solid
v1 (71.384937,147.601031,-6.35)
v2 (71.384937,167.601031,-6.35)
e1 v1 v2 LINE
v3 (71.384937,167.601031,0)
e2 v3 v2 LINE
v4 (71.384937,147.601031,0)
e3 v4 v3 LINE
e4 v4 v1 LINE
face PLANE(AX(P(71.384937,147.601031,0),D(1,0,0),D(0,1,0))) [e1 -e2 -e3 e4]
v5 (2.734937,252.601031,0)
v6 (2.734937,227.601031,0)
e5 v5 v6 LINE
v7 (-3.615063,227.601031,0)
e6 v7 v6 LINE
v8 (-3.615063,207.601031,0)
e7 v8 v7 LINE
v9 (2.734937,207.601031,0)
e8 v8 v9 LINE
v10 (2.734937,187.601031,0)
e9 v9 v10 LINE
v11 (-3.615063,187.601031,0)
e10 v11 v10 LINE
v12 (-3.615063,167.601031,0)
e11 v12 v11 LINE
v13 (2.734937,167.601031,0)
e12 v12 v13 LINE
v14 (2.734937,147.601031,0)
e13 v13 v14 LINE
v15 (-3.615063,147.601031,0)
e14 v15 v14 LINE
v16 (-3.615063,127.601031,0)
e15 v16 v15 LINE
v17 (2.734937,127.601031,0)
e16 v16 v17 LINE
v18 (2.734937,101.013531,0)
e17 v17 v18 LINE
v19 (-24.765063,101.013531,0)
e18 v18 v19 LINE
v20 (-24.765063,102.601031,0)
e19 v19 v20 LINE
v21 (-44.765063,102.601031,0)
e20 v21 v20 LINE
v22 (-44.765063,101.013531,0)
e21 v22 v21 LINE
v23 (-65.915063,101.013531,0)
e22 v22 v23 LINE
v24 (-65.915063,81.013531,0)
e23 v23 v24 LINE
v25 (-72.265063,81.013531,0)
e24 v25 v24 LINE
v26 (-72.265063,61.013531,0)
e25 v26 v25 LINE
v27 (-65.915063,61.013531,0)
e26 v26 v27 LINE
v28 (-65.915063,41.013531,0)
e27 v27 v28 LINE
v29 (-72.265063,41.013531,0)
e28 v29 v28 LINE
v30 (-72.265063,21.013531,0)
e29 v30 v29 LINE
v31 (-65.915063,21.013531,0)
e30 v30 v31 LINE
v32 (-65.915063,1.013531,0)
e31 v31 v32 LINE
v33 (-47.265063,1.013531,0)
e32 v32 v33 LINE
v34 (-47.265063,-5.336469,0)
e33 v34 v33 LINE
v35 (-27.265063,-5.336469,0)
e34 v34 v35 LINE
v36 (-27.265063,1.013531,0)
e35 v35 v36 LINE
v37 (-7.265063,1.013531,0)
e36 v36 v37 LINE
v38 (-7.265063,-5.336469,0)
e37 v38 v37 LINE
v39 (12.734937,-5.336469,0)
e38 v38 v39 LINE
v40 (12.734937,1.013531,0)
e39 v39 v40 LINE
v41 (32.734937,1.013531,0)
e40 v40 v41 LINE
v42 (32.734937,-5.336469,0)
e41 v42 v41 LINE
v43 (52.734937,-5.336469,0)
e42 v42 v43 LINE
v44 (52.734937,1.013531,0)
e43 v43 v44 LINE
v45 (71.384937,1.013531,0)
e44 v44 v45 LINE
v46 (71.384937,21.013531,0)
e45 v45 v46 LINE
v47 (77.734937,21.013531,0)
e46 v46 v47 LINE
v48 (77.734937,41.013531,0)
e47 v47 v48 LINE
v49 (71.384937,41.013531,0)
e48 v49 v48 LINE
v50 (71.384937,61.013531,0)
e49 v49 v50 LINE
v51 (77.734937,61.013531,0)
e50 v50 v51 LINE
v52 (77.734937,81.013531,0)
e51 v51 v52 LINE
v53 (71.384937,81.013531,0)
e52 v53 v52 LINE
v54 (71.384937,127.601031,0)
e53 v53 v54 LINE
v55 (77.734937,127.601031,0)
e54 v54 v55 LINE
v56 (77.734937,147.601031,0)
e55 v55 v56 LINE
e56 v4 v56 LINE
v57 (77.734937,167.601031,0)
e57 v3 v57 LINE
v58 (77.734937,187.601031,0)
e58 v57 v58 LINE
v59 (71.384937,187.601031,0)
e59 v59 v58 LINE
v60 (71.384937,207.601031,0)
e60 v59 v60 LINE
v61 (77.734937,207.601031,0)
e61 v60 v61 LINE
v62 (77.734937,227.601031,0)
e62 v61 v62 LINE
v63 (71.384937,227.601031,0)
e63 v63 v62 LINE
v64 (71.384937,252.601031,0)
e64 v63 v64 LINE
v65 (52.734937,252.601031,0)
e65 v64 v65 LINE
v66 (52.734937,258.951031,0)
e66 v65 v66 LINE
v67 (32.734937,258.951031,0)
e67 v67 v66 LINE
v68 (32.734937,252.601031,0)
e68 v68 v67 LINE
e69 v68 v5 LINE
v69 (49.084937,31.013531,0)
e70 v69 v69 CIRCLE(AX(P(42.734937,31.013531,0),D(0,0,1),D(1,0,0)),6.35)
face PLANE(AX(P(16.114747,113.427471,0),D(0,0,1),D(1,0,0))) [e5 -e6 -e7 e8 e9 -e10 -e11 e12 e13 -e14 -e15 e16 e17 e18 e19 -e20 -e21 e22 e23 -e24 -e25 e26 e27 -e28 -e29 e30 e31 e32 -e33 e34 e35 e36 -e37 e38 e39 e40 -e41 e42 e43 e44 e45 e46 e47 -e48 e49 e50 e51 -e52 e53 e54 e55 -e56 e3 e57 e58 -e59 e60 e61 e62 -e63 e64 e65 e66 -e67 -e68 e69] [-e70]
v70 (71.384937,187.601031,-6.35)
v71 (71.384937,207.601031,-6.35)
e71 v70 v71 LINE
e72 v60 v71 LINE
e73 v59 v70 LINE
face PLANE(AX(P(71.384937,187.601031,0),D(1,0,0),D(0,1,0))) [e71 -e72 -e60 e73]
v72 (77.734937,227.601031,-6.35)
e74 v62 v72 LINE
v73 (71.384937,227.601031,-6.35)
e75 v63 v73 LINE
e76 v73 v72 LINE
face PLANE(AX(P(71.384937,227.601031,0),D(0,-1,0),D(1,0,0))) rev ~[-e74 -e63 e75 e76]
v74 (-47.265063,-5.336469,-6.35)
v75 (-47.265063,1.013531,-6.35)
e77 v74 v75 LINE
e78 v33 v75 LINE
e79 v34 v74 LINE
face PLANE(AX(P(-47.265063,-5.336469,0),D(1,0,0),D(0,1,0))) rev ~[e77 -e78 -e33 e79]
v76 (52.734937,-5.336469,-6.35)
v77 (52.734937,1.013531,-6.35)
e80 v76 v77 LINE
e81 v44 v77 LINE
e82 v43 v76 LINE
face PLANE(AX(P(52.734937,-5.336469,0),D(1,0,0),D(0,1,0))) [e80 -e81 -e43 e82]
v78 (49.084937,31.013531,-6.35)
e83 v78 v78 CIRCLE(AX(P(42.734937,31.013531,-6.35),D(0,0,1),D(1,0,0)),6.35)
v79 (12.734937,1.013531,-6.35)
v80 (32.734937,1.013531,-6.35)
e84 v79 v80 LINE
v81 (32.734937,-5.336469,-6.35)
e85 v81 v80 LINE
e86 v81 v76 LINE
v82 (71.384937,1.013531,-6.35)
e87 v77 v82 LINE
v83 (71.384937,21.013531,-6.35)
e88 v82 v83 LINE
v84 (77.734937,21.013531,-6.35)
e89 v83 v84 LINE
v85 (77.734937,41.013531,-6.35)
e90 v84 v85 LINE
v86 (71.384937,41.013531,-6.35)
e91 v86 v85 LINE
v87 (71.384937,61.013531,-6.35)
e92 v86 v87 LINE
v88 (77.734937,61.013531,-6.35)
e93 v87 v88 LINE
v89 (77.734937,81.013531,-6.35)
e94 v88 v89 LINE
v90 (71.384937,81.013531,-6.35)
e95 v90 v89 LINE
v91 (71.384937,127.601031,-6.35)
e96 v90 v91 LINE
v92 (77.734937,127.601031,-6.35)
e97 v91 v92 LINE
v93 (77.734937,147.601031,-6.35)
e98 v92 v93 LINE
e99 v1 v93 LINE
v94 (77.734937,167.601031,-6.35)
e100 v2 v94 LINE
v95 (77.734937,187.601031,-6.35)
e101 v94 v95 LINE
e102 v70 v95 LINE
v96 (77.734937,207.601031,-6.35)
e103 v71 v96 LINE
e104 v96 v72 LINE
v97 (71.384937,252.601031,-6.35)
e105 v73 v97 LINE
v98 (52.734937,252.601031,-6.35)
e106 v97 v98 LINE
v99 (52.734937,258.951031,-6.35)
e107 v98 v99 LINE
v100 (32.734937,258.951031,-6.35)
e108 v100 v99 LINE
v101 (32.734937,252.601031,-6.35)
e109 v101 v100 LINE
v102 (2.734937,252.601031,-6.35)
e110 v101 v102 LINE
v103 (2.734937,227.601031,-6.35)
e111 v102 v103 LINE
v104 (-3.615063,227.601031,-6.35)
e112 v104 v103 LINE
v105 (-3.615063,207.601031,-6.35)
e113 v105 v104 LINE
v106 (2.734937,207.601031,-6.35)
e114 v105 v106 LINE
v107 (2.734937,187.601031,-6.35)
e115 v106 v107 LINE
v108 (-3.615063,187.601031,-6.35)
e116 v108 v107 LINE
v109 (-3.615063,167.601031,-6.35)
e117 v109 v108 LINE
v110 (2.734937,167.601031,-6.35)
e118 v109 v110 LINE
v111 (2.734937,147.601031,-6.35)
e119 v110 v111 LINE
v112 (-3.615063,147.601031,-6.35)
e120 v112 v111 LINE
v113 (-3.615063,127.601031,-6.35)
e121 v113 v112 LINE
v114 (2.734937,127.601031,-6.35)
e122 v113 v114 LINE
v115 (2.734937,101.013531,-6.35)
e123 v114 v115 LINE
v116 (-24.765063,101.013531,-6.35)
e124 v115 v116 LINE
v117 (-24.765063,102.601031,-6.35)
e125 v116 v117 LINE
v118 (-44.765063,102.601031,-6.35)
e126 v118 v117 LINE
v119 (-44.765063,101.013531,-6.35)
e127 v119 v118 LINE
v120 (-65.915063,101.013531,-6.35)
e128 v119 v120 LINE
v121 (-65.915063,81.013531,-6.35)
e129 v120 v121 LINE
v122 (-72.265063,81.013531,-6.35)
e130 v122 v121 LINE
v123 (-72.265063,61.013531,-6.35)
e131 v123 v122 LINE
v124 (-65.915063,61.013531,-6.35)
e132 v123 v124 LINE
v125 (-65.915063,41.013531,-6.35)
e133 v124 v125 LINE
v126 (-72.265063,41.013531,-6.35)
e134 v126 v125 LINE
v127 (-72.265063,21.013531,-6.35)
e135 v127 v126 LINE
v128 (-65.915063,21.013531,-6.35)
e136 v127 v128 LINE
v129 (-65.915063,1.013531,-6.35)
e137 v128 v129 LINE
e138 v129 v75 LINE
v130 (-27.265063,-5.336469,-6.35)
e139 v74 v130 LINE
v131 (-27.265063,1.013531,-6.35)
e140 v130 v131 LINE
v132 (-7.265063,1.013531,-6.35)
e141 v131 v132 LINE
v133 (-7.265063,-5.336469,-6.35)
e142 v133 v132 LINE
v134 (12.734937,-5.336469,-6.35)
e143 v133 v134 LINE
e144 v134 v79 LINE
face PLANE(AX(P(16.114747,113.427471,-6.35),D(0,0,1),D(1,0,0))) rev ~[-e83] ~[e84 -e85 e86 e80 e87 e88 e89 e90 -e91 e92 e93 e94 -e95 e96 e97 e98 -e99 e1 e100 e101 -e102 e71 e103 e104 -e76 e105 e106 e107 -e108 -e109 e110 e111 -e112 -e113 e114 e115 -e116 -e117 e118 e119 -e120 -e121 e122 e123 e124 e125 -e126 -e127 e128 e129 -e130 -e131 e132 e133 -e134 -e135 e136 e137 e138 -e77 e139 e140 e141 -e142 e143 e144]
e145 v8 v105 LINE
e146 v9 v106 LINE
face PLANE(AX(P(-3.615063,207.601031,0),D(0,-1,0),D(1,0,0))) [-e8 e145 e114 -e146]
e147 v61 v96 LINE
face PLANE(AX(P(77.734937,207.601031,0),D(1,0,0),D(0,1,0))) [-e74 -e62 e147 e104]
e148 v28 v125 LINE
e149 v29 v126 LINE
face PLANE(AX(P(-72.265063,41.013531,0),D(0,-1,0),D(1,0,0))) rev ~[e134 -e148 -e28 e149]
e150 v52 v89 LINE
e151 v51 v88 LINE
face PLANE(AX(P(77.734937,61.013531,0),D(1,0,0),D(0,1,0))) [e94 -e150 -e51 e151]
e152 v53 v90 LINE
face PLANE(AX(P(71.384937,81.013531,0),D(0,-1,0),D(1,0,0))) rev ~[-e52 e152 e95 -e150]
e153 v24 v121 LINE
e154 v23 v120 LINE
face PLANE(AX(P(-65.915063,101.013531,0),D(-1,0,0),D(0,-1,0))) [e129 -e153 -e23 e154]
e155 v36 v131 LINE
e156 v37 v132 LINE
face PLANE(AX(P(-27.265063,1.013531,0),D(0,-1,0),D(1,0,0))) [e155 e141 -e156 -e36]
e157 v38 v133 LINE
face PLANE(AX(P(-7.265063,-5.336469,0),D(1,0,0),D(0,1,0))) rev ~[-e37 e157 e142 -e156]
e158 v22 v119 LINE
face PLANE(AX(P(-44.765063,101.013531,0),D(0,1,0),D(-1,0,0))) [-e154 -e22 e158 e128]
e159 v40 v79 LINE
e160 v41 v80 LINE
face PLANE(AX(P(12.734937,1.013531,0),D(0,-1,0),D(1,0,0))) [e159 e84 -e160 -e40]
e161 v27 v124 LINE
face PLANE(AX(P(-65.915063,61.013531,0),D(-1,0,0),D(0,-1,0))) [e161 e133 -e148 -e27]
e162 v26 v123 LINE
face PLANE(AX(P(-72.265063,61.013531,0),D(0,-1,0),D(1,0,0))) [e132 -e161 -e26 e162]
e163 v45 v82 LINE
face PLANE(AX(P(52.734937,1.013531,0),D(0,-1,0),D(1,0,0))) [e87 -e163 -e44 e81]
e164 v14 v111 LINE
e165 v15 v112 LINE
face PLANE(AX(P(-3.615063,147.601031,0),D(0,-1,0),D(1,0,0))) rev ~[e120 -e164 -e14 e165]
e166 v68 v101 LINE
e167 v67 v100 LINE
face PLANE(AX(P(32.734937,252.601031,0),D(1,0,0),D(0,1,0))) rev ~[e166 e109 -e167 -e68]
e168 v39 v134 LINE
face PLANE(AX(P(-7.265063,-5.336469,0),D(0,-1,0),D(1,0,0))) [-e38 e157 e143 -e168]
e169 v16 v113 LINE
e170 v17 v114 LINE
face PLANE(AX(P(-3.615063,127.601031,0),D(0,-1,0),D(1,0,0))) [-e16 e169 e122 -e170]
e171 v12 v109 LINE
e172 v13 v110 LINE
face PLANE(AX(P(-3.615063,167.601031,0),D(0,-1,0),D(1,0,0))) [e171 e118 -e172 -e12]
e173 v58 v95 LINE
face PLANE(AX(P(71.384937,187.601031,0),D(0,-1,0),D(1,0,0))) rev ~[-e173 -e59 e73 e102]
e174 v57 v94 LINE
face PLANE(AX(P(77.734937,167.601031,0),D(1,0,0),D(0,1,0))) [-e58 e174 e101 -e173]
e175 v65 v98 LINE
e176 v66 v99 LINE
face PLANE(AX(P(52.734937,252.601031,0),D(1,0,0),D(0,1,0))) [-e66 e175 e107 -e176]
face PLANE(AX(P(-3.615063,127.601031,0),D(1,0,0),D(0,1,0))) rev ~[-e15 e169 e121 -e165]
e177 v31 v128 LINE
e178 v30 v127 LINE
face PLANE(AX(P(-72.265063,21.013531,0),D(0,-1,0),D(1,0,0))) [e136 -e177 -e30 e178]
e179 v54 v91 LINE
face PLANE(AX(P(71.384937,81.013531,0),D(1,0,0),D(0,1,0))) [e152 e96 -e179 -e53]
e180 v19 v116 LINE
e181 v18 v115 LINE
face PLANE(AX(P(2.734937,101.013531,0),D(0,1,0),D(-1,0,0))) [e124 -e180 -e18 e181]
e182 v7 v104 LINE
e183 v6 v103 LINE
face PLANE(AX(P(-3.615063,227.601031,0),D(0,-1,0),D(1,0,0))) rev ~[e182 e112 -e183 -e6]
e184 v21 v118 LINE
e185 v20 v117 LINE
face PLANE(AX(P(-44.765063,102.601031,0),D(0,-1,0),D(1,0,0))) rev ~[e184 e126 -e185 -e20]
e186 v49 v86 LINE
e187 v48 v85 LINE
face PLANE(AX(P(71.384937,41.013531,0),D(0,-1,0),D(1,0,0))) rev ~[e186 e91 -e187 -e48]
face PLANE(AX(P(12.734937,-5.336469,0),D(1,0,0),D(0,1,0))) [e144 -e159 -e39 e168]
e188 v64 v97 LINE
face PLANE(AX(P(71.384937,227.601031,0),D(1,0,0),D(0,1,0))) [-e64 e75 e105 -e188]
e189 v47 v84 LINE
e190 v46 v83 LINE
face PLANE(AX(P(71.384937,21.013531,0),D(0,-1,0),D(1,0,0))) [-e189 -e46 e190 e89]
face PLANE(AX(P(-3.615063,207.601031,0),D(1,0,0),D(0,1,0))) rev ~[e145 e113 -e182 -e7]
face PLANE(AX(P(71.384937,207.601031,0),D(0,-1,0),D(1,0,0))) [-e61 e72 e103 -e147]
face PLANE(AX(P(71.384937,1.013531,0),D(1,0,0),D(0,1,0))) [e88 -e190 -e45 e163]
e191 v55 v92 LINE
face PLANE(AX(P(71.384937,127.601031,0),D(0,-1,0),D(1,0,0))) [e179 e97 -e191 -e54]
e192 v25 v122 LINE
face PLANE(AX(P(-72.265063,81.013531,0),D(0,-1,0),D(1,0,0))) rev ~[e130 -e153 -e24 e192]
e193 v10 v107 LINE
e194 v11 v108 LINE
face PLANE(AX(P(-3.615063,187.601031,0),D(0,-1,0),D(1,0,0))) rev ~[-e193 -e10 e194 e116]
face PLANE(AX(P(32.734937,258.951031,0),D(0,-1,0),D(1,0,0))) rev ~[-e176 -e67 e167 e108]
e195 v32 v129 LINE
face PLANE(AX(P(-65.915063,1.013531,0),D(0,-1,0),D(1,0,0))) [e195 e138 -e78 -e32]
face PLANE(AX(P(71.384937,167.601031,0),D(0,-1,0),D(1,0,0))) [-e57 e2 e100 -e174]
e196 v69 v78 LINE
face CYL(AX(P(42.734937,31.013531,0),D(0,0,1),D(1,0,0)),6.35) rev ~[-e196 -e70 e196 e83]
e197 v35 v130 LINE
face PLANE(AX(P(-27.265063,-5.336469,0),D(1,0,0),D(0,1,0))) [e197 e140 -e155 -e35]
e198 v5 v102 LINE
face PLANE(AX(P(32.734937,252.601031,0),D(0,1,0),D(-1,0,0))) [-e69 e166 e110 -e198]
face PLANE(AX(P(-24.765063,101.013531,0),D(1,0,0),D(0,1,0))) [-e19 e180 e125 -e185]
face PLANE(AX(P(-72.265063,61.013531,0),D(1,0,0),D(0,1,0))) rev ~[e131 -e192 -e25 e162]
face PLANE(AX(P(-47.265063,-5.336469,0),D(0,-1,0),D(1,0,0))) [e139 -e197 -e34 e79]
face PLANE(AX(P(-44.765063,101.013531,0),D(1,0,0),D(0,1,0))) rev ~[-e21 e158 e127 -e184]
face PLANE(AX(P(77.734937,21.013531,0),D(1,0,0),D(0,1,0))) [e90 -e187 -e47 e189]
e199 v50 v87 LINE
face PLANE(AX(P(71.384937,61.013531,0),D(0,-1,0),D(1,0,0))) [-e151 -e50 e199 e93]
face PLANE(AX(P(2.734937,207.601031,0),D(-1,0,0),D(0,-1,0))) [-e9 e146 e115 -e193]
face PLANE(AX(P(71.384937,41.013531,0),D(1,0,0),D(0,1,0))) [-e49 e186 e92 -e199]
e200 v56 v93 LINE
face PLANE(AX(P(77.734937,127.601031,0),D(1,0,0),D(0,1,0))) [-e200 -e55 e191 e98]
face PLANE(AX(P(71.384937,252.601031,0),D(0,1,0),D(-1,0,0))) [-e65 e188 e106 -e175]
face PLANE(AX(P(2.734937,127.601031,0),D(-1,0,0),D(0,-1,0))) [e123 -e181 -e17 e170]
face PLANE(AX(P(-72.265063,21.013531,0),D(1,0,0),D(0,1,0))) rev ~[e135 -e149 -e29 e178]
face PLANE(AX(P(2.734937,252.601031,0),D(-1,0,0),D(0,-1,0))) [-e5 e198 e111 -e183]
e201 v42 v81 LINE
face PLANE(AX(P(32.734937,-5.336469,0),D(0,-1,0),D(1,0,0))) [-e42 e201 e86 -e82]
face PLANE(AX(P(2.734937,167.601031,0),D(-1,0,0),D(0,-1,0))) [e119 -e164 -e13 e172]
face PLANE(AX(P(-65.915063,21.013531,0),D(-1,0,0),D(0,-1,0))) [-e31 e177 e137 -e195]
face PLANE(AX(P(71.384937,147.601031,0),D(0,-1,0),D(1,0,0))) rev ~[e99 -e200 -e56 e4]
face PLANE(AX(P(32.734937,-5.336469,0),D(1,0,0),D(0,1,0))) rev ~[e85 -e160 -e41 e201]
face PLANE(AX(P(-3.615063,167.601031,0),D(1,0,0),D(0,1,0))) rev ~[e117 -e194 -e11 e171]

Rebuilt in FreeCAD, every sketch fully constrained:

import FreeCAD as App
import Part
import Sketcher


def add_polygon(sketch, points):
    """Adds a closed chain of lines whose ends are joined by coincident constraints."""
    first, n = sketch.GeometryCount, len(points)
    for a, b in zip(points, points[1:] + points[:1]):
        sketch.addGeometry(Part.LineSegment(App.Vector(*a, 0), App.Vector(*b, 0)), False)
    for i in range(n):
        sketch.addConstraint(Sketcher.Constraint("Coincident", first + i, 2, first + (i + 1) % n, 1))

doc = App.newDocument("Part")
body = doc.addObject("PartDesign::Body", "Body")

# Sketch on XY plane
sketch1 = doc.addObject("Sketcher::SketchObject", "Sketch")
body.addObject(sketch1)
sketch1.AttachmentSupport = (doc.XY_Plane, [""])
sketch1.MapMode = "FlatFace"
add_polygon(sketch1, [(71.384937, 252.601031), (52.734937, 252.601031), (52.734937, 258.951031), (32.734937, 258.951031), (32.734937, 252.601031), (2.734937, 252.601031), (2.734937, 227.601031), (-3.615063, 227.601031), (-3.615063, 207.601031), (2.734937, 207.601031), (2.734937, 187.601031), (-3.615063, 187.601031), (-3.615063, 167.601031), (2.734937, 167.601031), (2.734937, 147.601031), (-3.615063, 147.601031), (-3.615063, 127.601031), (2.734937, 127.601031), (2.734937, 101.013531), (-24.765063, 101.013531), (-24.765063, 102.601031), (-44.765063, 102.601031), (-44.765063, 101.013531), (-65.915063, 101.013531), (-65.915063, 81.013531), (-72.265063, 81.013531), (-72.265063, 61.013531), (-65.915063, 61.013531), (-65.915063, 41.013531), (-72.265063, 41.013531), (-72.265063, 21.013531), (-65.915063, 21.013531), (-65.915063, 1.013531), (-47.265063, 1.013531), (-47.265063, -5.336469), (-27.265063, -5.336469), (-27.265063, 1.013531), (-7.265063, 1.013531), (-7.265063, -5.336469), (12.734937, -5.336469), (12.734937, 1.013531), (32.734937, 1.013531), (32.734937, -5.336469), (52.734937, -5.336469), (52.734937, 1.013531), (71.384937, 1.013531), (71.384937, 21.013531), (77.734937, 21.013531), (77.734937, 41.013531), (71.384937, 41.013531), (71.384937, 61.013531), (77.734937, 61.013531), (77.734937, 81.013531), (71.384937, 81.013531), (71.384937, 127.601031), (77.734937, 127.601031), (77.734937, 147.601031), (71.384937, 147.601031), (71.384937, 167.601031), (77.734937, 167.601031), (77.734937, 187.601031), (71.384937, 187.601031), (71.384937, 207.601031), (77.734937, 207.601031), (77.734937, 227.601031), (71.384937, 227.601031)])  # lines 0-65
sketch1.addGeometry(Part.Circle(App.Vector(42.734937, 31.013531, 0), App.Vector(0, 0, 1), 6.35), False)  # 66
sketch1.addConstraint([
    Sketcher.Constraint("Horizontal", 0),
    Sketcher.Constraint("Vertical", 1),
    Sketcher.Constraint("Horizontal", 2),
    Sketcher.Constraint("Vertical", 3),
    Sketcher.Constraint("Horizontal", 4),
    Sketcher.Constraint("Vertical", 5),
    Sketcher.Constraint("Horizontal", 6),
    Sketcher.Constraint("Vertical", 7),
    Sketcher.Constraint("Horizontal", 8),
    Sketcher.Constraint("Vertical", 9),
    Sketcher.Constraint("Horizontal", 10),
    Sketcher.Constraint("Vertical", 11),
    Sketcher.Constraint("Horizontal", 12),
    Sketcher.Constraint("Vertical", 13),
    Sketcher.Constraint("Horizontal", 14),
    Sketcher.Constraint("Vertical", 15),
    Sketcher.Constraint("Horizontal", 16),
    Sketcher.Constraint("Vertical", 17),
    Sketcher.Constraint("Horizontal", 18),
    Sketcher.Constraint("Vertical", 19),
    Sketcher.Constraint("Horizontal", 20),
    Sketcher.Constraint("Vertical", 21),
    Sketcher.Constraint("Horizontal", 22),
    Sketcher.Constraint("Vertical", 23),
    Sketcher.Constraint("Horizontal", 24),
    Sketcher.Constraint("Vertical", 25),
    Sketcher.Constraint("Horizontal", 26),
    Sketcher.Constraint("Vertical", 27),
    Sketcher.Constraint("Horizontal", 28),
    Sketcher.Constraint("Vertical", 29),
    Sketcher.Constraint("Horizontal", 30),
    Sketcher.Constraint("Vertical", 31),
    Sketcher.Constraint("Horizontal", 32),
    Sketcher.Constraint("Vertical", 33),
    Sketcher.Constraint("Horizontal", 34),
    Sketcher.Constraint("Vertical", 35),
    Sketcher.Constraint("Horizontal", 36),
    Sketcher.Constraint("Vertical", 37),
    Sketcher.Constraint("Horizontal", 38),
    Sketcher.Constraint("Vertical", 39),
    Sketcher.Constraint("Horizontal", 40),
    Sketcher.Constraint("Vertical", 41),
    Sketcher.Constraint("Horizontal", 42),
    Sketcher.Constraint("Vertical", 43),
    Sketcher.Constraint("Horizontal", 44),
    Sketcher.Constraint("Vertical", 45),
    Sketcher.Constraint("Horizontal", 46),
    Sketcher.Constraint("Vertical", 47),
    Sketcher.Constraint("Horizontal", 48),
    Sketcher.Constraint("Vertical", 49),
    Sketcher.Constraint("Horizontal", 50),
    Sketcher.Constraint("Vertical", 51),
    Sketcher.Constraint("Horizontal", 52),
    Sketcher.Constraint("Vertical", 53),
    Sketcher.Constraint("Horizontal", 54),
    Sketcher.Constraint("Vertical", 55),
    Sketcher.Constraint("Horizontal", 56),
    Sketcher.Constraint("Vertical", 57),
    Sketcher.Constraint("Horizontal", 58),
    Sketcher.Constraint("Vertical", 59),
    Sketcher.Constraint("Horizontal", 60),
    Sketcher.Constraint("Vertical", 61),
    Sketcher.Constraint("Horizontal", 62),
    Sketcher.Constraint("Vertical", 63),
    Sketcher.Constraint("Horizontal", 64),
    Sketcher.Constraint("Vertical", 65),
    Sketcher.Constraint("Horizontal", 0, 2, 3, 2),
    Sketcher.Constraint("Horizontal", 18, 2, 21, 2),
    Sketcher.Constraint("Horizontal", 32, 2, 35, 2),
    Sketcher.Constraint("Horizontal", 34, 2, 37, 2),
    Sketcher.Constraint("Horizontal", 36, 2, 39, 2),
    Sketcher.Constraint("Horizontal", 38, 2, 41, 2),
    Sketcher.Constraint("Horizontal", 40, 2, 43, 2),
    Sketcher.Constraint("Horizontal", 30, 2, 45, 2),
    Sketcher.Constraint("Horizontal", 28, 2, 47, 2),
    Sketcher.Constraint("Horizontal", 26, 2, 49, 2),
    Sketcher.Constraint("Horizontal", 24, 2, 51, 2),
    Sketcher.Constraint("Horizontal", 16, 2, 53, 2),
    Sketcher.Constraint("Horizontal", 14, 2, 55, 2),
    Sketcher.Constraint("Horizontal", 12, 2, 57, 2),
    Sketcher.Constraint("Horizontal", 10, 2, 59, 2),
    Sketcher.Constraint("Horizontal", 8, 2, 61, 2),
    Sketcher.Constraint("Horizontal", 6, 2, 63, 2),
    Sketcher.Constraint("Vertical", 5, 2, 8, 2),
    Sketcher.Constraint("Vertical", 7, 2, 10, 2),
    Sketcher.Constraint("Vertical", 9, 2, 12, 2),
    Sketcher.Constraint("Vertical", 11, 2, 14, 2),
    Sketcher.Constraint("Vertical", 13, 2, 16, 2),
    Sketcher.Constraint("Vertical", 23, 2, 26, 2),
    Sketcher.Constraint("Vertical", 25, 2, 28, 2),
    Sketcher.Constraint("Vertical", 27, 2, 30, 2),
    Sketcher.Constraint("Vertical", 3, 2, 40, 2),
    Sketcher.Constraint("Vertical", 1, 2, 42, 2),
    Sketcher.Constraint("Vertical", 45, 2, 48, 2),
    Sketcher.Constraint("Vertical", 47, 2, 50, 2),
    Sketcher.Constraint("Vertical", 49, 2, 52, 2),
    Sketcher.Constraint("Vertical", 51, 2, 54, 2),
    Sketcher.Constraint("Vertical", 53, 2, 56, 2),
    Sketcher.Constraint("Vertical", 55, 2, 58, 2),
    Sketcher.Constraint("Vertical", 57, 2, 60, 2),
    Sketcher.Constraint("Vertical", 59, 2, 62, 2),
    Sketcher.Constraint("Vertical", 61, 2, 64, 2),
    Sketcher.Constraint("Equal", 2, 20),
    Sketcher.Constraint("Equal", 16, 24),
    Sketcher.Constraint("Equal", 0, 32),
    Sketcher.Constraint("Equal", 20, 34),
    Sketcher.Constraint("Equal", 34, 36),
    Sketcher.Constraint("Equal", 36, 38),
    Sketcher.Constraint("Equal", 38, 40),
    Sketcher.Constraint("Equal", 30, 46),
    Sketcher.Constraint("Equal", 64, 1),
    Sketcher.Constraint("Equal", 42, 7),
    Sketcher.Constraint("Equal", 7, 9),
    Sketcher.Constraint("Equal", 9, 11),
    Sketcher.Constraint("Equal", 11, 13),
    Sketcher.Constraint("Equal", 13, 15),
    Sketcher.Constraint("Equal", 15, 23),
    Sketcher.Constraint("Equal", 23, 25),
    Sketcher.Constraint("Equal", 25, 27),
    Sketcher.Constraint("Equal", 27, 29),
    Sketcher.Constraint("Equal", 29, 31),
    Sketcher.Constraint("Equal", 3, 33),
    Sketcher.Constraint("Diameter", 66, 12.7),
    Sketcher.Constraint("DistanceX", 2, 2, 2, 1, 20.0),
    Sketcher.Constraint("DistanceX", 4, 2, 4, 1, 30.0),
    Sketcher.Constraint("DistanceY", 5, 2, 5, 1, 25.0),
    Sketcher.Constraint("DistanceX", 18, 2, 18, 1, 27.5),
    Sketcher.Constraint("DistanceX", 0, 2, 0, 1, 18.65),
    Sketcher.Constraint("DistanceX", 6, 2, 6, 1, 6.35),
    Sketcher.Constraint("DistanceY", 17, 2, 17, 1, 26.5875),
    Sketcher.Constraint("DistanceY", 19, 1, 19, 2, 1.5875),
    Sketcher.Constraint("DistanceY", -1, 1, 66, 3, 31.013531),
    Sketcher.Constraint("DistanceY", -1, 1, 0, 2, 252.601031),
    Sketcher.Constraint("DistanceX", -1, 1, 66, 3, 42.734937),
    Sketcher.Constraint("DistanceX", -1, 1, 0, 2, 52.734937),
])
pad1 = doc.addObject("PartDesign::Pad", "Pad")
body.addObject(pad1)
pad1.Profile = sketch1
pad1.Length = 6.35
pad1.Reversed = True

doc.recompute()
